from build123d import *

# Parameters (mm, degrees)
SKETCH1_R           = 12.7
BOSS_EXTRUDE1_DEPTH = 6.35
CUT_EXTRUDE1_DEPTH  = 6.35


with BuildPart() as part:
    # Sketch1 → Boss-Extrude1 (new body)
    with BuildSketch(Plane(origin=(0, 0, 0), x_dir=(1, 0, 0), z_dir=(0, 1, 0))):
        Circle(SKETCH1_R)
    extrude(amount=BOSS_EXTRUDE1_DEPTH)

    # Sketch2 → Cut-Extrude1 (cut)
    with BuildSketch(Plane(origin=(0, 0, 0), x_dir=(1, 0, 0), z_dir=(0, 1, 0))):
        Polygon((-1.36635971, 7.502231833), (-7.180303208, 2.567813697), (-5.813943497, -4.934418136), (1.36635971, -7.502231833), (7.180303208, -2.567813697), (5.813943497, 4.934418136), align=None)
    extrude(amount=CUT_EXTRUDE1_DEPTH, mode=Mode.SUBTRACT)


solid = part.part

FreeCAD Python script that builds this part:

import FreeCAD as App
import Part
import Sketcher
from FreeCAD import Vector
Q = App.Units.Quantity

doc = App.newDocument("Part")
params = doc.addObject("Spreadsheet::Sheet", "Params")
for row, (alias, value) in enumerate([
    ("sketch1_diameter", "1 in"),
    ("pad1_length", "0.25 in"),
    ("pocket1_length", "0.25 in"),
], start=1):
    params.set(f"A{row}", alias)
    params.set(f"B{row}", "=" + value)
    params.setAlias(f"B{row}", alias)

body = doc.addObject("PartDesign::Body", "Body")

sketch1 = body.newObject("Sketcher::SketchObject", "Sketch")
sketch1.AttachmentSupport = (doc.getObject("XZ_Plane"), [""])
sketch1.MapMode = "FlatFace"
sketch1.addGeometry(Part.Circle(Vector(0, 0, 0), Vector(0, 0, 1), 12.7), False)
sketch1.addConstraint([
    Sketcher.Constraint("Coincident", 0, 3, -1, 1),
    Sketcher.Constraint("Diameter", 0, Q("1 in")),
])
sketch1.setExpression("Constraints[1]", "Params.sketch1_diameter")
pad1 = body.newObject("PartDesign::Pad", "Pad")
pad1.Profile = sketch1
pad1.setExpression("Length", "Params.pad1_length")
pad1.Reversed = True

sketch2 = body.newObject("Sketcher::SketchObject", "Sketch001")
sketch2.AttachmentSupport = (doc.getObject("XZ_Plane"), [""])
sketch2.MapMode = "FlatFace"
sketch2.addGeometry([
    Part.LineSegment(Vector(-1.36636, -7.502232, 0), Vector(-7.180303, -2.567814, 0)),
    Part.LineSegment(Vector(-7.180303, -2.567814, 0), Vector(-5.813943, 4.934418, 0)),
    Part.LineSegment(Vector(-5.813943, 4.934418, 0), Vector(1.36636, 7.502232, 0)),
    Part.LineSegment(Vector(1.36636, 7.502232, 0), Vector(7.180303, 2.567814, 0)),
    Part.LineSegment(Vector(7.180303, 2.567814, 0), Vector(5.813943, -4.934418, 0)),
    Part.LineSegment(Vector(5.813943, -4.934418, 0), Vector(-1.36636, -7.502232, 0)),
], False)
sketch2.addConstraint([
    Sketcher.Constraint("Coincident", 0, 2, 1, 1),
    Sketcher.Constraint("Coincident", 1, 2, 2, 1),
    Sketcher.Constraint("Coincident", 2, 2, 3, 1),
    Sketcher.Constraint("Coincident", 3, 2, 4, 1),
    Sketcher.Constraint("Coincident", 4, 2, 5, 1),
    Sketcher.Constraint("Coincident", 5, 2, 0, 1),
    Sketcher.Constraint("Symmetric", 0, 2, 3, 2, -1, 1),
    Sketcher.Constraint("Symmetric", 1, 2, 4, 2, -1, 1),
    Sketcher.Constraint("Symmetric", 2, 2, 5, 2, -1, 1),
    Sketcher.Constraint("Equal", 0, 1),
    Sketcher.Constraint("Equal", 1, 2),
    Sketcher.Constraint("DistanceY", -1, 1, 1, 2, Q("4.934418 mm")),
    Sketcher.Constraint("DistanceX", -1, 1, 2, 2, Q("1.36636 mm")),
    Sketcher.Constraint("DistanceY", -1, 1, 2, 2, Q("7.502232 mm")),
    Sketcher.Constraint("DistanceX", 0, 2, 1, 2, Q("1.36636 mm")),
])
pocket1 = body.newObject("PartDesign::Pocket", "Pocket")
pocket1.Profile = sketch2
pocket1.setExpression("Length", "Params.pocket1_length")

doc.recompute()
